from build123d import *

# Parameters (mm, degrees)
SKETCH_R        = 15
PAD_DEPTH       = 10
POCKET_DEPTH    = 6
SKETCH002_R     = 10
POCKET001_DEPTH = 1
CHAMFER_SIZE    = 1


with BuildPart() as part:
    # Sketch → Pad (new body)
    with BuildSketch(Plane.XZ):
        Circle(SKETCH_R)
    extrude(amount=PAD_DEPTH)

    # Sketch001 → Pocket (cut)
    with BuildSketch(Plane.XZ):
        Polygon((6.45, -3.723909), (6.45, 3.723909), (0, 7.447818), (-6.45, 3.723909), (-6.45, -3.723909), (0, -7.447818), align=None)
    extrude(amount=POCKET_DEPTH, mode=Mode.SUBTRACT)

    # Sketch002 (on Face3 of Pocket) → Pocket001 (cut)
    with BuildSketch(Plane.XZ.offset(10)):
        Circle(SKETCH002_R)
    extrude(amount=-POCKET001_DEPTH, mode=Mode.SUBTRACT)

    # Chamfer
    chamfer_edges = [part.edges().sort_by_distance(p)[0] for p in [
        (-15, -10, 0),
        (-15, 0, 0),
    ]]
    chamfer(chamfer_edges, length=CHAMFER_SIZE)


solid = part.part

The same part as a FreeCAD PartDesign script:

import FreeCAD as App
import Part
import Sketcher
Q = App.Units.Quantity


def edges_at(feature, points):
    """Names of the edges that pass closest to the given points."""
    edges = feature.Shape.Edges
    near = lambda p: min(range(len(edges)), key=lambda i: edges[i].distToShape(Part.Vertex(*p))[0])
    return sorted({f"Edge{near(p) + 1}" for p in points})


def add_polygon(sketch, points):
    """Adds a closed chain of lines whose ends are joined by coincident constraints."""
    first, n = sketch.GeometryCount, len(points)
    for a, b in zip(points, points[1:] + points[:1]):
        sketch.addGeometry(Part.LineSegment(App.Vector(*a, 0), App.Vector(*b, 0)), False)
    for i in range(n):
        sketch.addConstraint(Sketcher.Constraint("Coincident", first + i, 2, first + (i + 1) % n, 1))

doc = App.newDocument("Part")
body = doc.addObject("PartDesign::Body", "Body")

# Sketch on XZ plane
sketch1 = body.newObject("Sketcher::SketchObject", "Sketch")
sketch1.AttachmentSupport = (doc.getObject("XZ_Plane"), [""])
sketch1.MapMode = "FlatFace"
sketch1.addGeometry(Part.Circle(App.Vector(0, 0, 0), App.Vector(0, 0, 1), 15), False)
sketch1.addConstraint(Sketcher.Constraint("Coincident", 0, 3, -1, 1))
sketch1.addConstraint(Sketcher.Constraint("Diameter", 0, Q("30 mm")))
pad1 = body.newObject("PartDesign::Pad", "Pad")
pad1.Profile = sketch1
pad1.Length = 10

# Sketch on XZ plane
sketch2 = body.newObject("Sketcher::SketchObject", "Sketch001")
sketch2.AttachmentSupport = (doc.getObject("XZ_Plane"), [""])
sketch2.MapMode = "FlatFace"
add_polygon(sketch2, [(6.45, -3.723909), (6.45, 3.723909), (0, 7.447818), (-6.45, 3.723909), (-6.45, -3.723909), (0, -7.447818)])  # lines 0-5
sketch2.addConstraint(Sketcher.Constraint("Vertical", 0))
sketch2.addConstraint(Sketcher.Constraint("Vertical", 3))
sketch2.addConstraint(Sketcher.Constraint("Symmetric", 0, 2, 3, 2, -1, 1))
sketch2.addConstraint(Sketcher.Constraint("Symmetric", 1, 2, 4, 2, -1, 1))
sketch2.addConstraint(Sketcher.Constraint("PointOnObject", 1, 2, -2))
sketch2.addConstraint(Sketcher.Constraint("Parallel", 2, 5))
sketch2.addConstraint(Sketcher.Constraint("Horizontal", 0, 2, 2, 2))
sketch2.addConstraint(Sketcher.Constraint("Angle", 1, Q("150.000002 deg")))
sketch2.addConstraint(Sketcher.Constraint("DistanceX", 2, 2, 0, 2, Q("12.9 mm")))
sketch2.addConstraint(Sketcher.Constraint("DistanceY", 0, 1, 0, 2, Q("7.447818 mm")))
pocket1 = body.newObject("PartDesign::Pocket", "Pocket")
pocket1.Profile = sketch2
pocket1.Length = 6
pocket1.Reversed = True

# Sketch on XZ plane
sketch3 = body.newObject("Sketcher::SketchObject", "Sketch002")
sketch3.AttachmentSupport = (doc.getObject("XZ_Plane"), [""])
sketch3.MapMode = "FlatFace"
sketch3.AttachmentOffset = App.Placement(App.Vector(0, 0, 10), App.Rotation())
sketch3.addGeometry(Part.Circle(App.Vector(0, 0, 0), App.Vector(0, 0, 1), 10), False)
sketch3.addConstraint(Sketcher.Constraint("Coincident", 0, 3, -1, 1))
sketch3.addConstraint(Sketcher.Constraint("Diameter", 0, Q("20 mm")))
pocket2 = body.newObject("PartDesign::Pocket", "Pocket001")
pocket2.Profile = sketch3
pocket2.Length = 1
doc.recompute()

chamfer = body.newObject("PartDesign::Chamfer", "Chamfer")
chamfer.Base = (pocket2, edges_at(pocket2, [(-15, -10, 0), (-15, 0, 0)]))
chamfer.Size = 1

doc.recompute()
